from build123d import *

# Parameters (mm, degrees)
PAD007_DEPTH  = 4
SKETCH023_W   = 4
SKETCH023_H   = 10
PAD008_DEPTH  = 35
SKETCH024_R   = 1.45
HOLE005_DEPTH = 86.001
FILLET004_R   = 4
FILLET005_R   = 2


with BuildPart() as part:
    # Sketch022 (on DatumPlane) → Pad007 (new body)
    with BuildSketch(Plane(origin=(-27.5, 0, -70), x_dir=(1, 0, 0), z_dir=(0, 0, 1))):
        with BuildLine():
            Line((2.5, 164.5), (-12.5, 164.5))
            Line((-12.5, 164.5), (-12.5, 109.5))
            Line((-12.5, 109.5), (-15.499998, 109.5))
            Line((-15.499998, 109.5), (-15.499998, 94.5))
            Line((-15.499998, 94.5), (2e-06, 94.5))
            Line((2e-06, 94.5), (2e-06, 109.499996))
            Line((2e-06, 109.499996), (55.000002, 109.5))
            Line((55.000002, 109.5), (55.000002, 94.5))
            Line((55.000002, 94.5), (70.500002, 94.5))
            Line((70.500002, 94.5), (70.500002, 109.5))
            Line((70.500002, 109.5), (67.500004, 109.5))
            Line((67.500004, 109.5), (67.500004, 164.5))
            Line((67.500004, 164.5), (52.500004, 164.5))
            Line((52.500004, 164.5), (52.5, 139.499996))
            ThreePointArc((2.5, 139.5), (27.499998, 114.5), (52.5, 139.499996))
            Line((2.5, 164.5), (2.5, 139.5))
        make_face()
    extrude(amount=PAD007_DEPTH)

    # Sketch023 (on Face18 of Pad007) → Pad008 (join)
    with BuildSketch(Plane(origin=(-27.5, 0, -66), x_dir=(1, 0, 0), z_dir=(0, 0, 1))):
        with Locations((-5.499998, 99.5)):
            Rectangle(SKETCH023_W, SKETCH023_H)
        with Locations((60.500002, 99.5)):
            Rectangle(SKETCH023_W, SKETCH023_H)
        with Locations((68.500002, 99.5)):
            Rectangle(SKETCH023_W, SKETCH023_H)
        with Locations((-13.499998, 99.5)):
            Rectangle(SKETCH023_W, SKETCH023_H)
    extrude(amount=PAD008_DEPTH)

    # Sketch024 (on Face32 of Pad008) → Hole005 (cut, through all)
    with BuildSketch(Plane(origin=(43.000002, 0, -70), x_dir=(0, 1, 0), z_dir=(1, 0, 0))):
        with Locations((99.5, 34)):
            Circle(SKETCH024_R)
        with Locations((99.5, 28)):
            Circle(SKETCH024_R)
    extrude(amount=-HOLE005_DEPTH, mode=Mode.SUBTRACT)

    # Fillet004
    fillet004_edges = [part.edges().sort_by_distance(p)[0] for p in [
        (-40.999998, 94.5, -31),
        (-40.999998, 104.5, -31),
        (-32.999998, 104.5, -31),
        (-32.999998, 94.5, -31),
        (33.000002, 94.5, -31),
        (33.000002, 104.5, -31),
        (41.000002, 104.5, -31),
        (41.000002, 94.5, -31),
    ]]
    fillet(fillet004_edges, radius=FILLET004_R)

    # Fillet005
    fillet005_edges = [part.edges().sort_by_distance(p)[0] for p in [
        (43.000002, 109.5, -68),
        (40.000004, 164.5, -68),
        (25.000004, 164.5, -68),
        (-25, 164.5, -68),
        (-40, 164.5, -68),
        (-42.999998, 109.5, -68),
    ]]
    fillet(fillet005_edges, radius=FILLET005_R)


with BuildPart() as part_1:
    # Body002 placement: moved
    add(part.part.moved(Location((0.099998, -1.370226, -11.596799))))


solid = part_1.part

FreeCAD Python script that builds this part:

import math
import FreeCAD as App
import Part
import Sketcher
from FreeCAD import Vector
Q = App.Units.Quantity


def edges_at(feature, points):
    """Names of the edges that pass closest to the given points."""
    edges = feature.Shape.Edges
    near = lambda p: min(range(len(edges)), key=lambda i: edges[i].distToShape(Part.Vertex(*p))[0])
    return sorted({f"Edge{near(p) + 1}" for p in points})


def add_polygon(sketch, points):
    """Adds a closed chain of lines whose ends are joined by coincident constraints."""
    first, n = sketch.GeometryCount, len(points)
    for a, b in zip(points, points[1:] + points[:1]):
        sketch.addGeometry(Part.LineSegment(App.Vector(*a, 0), App.Vector(*b, 0)), False)
    for i in range(n):
        sketch.addConstraint(Sketcher.Constraint("Coincident", first + i, 2, first + (i + 1) % n, 1))

doc = App.newDocument("Part")
body = doc.addObject("PartDesign::Body", "Body")

sketch1 = doc.addObject("Sketcher::SketchObject", "Sketch")
body.addObject(sketch1)
sketch1.AttachmentSupport = (doc.XY_Plane, [""])
sketch1.MapMode = "FlatFace"
sketch1.AttachmentOffset = App.Placement(Vector(0, 0, -70), App.Rotation())
sketch1.addGeometry([
    Part.LineSegment(Vector(-25, 164.5, 0), Vector(-40, 164.5, 0)),
    Part.LineSegment(Vector(-40, 164.5, 0), Vector(-40, 109.5, 0)),
    Part.LineSegment(Vector(-40, 109.5, 0), Vector(-42.999998, 109.5, 0)),
    Part.LineSegment(Vector(-42.999998, 109.5, 0), Vector(-42.999998, 94.5, 0)),
    Part.LineSegment(Vector(-42.999998, 94.5, 0), Vector(-27.499998, 94.5, 0)),
    Part.LineSegment(Vector(-27.499998, 94.5, 0), Vector(-27.499998, 109.499996, 0)),
    Part.LineSegment(Vector(-27.499998, 109.499996, 0), Vector(27.500002, 109.5, 0)),
    Part.LineSegment(Vector(27.500002, 109.5, 0), Vector(27.500002, 94.5, 0)),
    Part.LineSegment(Vector(27.500002, 94.5, 0), Vector(43.000002, 94.5, 0)),
    Part.LineSegment(Vector(43.000002, 94.5, 0), Vector(43.000002, 109.5, 0)),
    Part.LineSegment(Vector(43.000002, 109.5, 0), Vector(40.000004, 109.5, 0)),
    Part.LineSegment(Vector(40.000004, 109.5, 0), Vector(40.000004, 164.5, 0)),
    Part.LineSegment(Vector(40.000004, 164.5, 0), Vector(25.000004, 164.5, 0)),
    Part.LineSegment(Vector(25.000004, 164.5, 0), Vector(25, 139.499996, 0)),
    Part.ArcOfCircle(Part.Circle(Vector(0, 139.5, 0), Vector(0, 0, 1), 25), math.radians(180), math.radians(359.999991)),
    Part.LineSegment(Vector(-25, 139.5, 0), Vector(-25, 164.5, 0)),
], False)
sketch1.addConstraint([
    Sketcher.Constraint("Coincident", 0, 2, 1, 1),
    Sketcher.Constraint("Coincident", 1, 2, 2, 1),
    Sketcher.Constraint("Coincident", 2, 2, 3, 1),
    Sketcher.Constraint("Coincident", 3, 2, 4, 1),
    Sketcher.Constraint("Coincident", 4, 2, 5, 1),
    Sketcher.Constraint("Coincident", 5, 2, 6, 1),
    Sketcher.Constraint("Coincident", 6, 2, 7, 1),
    Sketcher.Constraint("Coincident", 7, 2, 8, 1),
    Sketcher.Constraint("Coincident", 8, 2, 9, 1),
    Sketcher.Constraint("Coincident", 9, 2, 10, 1),
    Sketcher.Constraint("Coincident", 10, 2, 11, 1),
    Sketcher.Constraint("Coincident", 11, 2, 12, 1),
    Sketcher.Constraint("Coincident", 12, 2, 13, 1),
    Sketcher.Constraint("Tangent", 13, 2, 14, 2),
    Sketcher.Constraint("Tangent", 14, 1, 15, 1),
    Sketcher.Constraint("Coincident", 15, 2, 0, 1),
    Sketcher.Constraint("Horizontal", 0),
    Sketcher.Constraint("Vertical", 1),
    Sketcher.Constraint("Horizontal", 2),
    Sketcher.Constraint("Vertical", 3),
    Sketcher.Constraint("Horizontal", 4),
    Sketcher.Constraint("Vertical", 5),
    Sketcher.Constraint("Vertical", 7),
    Sketcher.Constraint("Horizontal", 8),
    Sketcher.Constraint("Vertical", 9),
    Sketcher.Constraint("Horizontal", 10),
    Sketcher.Constraint("Vertical", 11),
    Sketcher.Constraint("Horizontal", 12),
    Sketcher.Constraint("Vertical", 15),
    Sketcher.Constraint("Symmetric", 5, 2, 6, 2, -2),
    Sketcher.Constraint("Symmetric", 3, 2, 8, 2, -2),
    Sketcher.Constraint("Symmetric", 1, 2, 10, 2, -2),
    Sketcher.Constraint("Symmetric", 13, 2, 14, 1, -2),
    Sketcher.Constraint("Horizontal", 2, 2, 6, 2),
    Sketcher.Constraint("Horizontal", 0, 2, 11, 2),
    Sketcher.Constraint("Equal", 12, 3),
    Sketcher.Constraint("Radius", 14, Q("25 mm")),
    Sketcher.Constraint("DistanceX", 0, 2, 0, 1, Q("15 mm")),
    Sketcher.Constraint("DistanceX", 10, 2, 10, 1, Q("2.999998 mm")),
    Sketcher.Constraint("DistanceY", 1, 2, 1, 1, Q("55 mm")),
    Sketcher.Constraint("DistanceY", 15, 1, 15, 2, Q("25 mm")),
    Sketcher.Constraint("Distance", 6, Q("55 mm")),
    Sketcher.Constraint("DistanceY", -1, 1, 14, 3, Q("139.5 mm")),
])
pad1 = doc.addObject("PartDesign::Pad", "Pad")
body.addObject(pad1)
pad1.Profile = sketch1
pad1.Length = 4

sketch2 = doc.addObject("Sketcher::SketchObject", "Sketch001")
body.addObject(sketch2)
sketch2.AttachmentSupport = (doc.XY_Plane, [""])
sketch2.MapMode = "FlatFace"
sketch2.AttachmentOffset = App.Placement(Vector(0, 0, -66), App.Rotation())
add_polygon(sketch2, [(-34.999998, 104.5), (-34.999998, 94.5), (-30.999998, 94.5), (-30.999998, 104.5)])
add_polygon(sketch2, [(31.000002, 104.5), (31.000002, 94.5), (35.000002, 94.5), (35.000002, 104.5)])
add_polygon(sketch2, [(39.000002, 104.5), (39.000002, 94.5), (43.000002, 94.5), (43.000002, 104.5)])
add_polygon(sketch2, [(-42.999998, 104.5), (-42.999998, 94.5), (-38.999998, 94.5), (-38.999998, 104.5)])
sketch2.addConstraint([
    Sketcher.Constraint("Vertical", 0),
    Sketcher.Constraint("Horizontal", 1),
    Sketcher.Constraint("Vertical", 2),
    Sketcher.Constraint("Horizontal", 3),
    Sketcher.Constraint("Vertical", 4),
    Sketcher.Constraint("Horizontal", 5),
    Sketcher.Constraint("Vertical", 6),
    Sketcher.Constraint("Horizontal", 7),
    Sketcher.Constraint("Vertical", 8),
    Sketcher.Constraint("Horizontal", 9),
    Sketcher.Constraint("Vertical", 10),
    Sketcher.Constraint("Horizontal", 11),
    Sketcher.Constraint("Vertical", 12),
    Sketcher.Constraint("Horizontal", 13),
    Sketcher.Constraint("Vertical", 14),
    Sketcher.Constraint("Horizontal", 15),
    Sketcher.Constraint("Symmetric", 1, 2, 4, 2, -2),
    Sketcher.Constraint("Symmetric", 3, 2, 6, 2, -2),
    Sketcher.Constraint("Symmetric", 9, 2, 12, 2, -2),
    Sketcher.Constraint("Symmetric", 11, 2, 14, 2, -2),
    Sketcher.Constraint("Horizontal", 5, 2, 8, 2),
    Sketcher.Constraint("Horizontal", 7, 2, 10, 2),
    Sketcher.Constraint("Equal", 7, 9),
    Sketcher.Constraint("DistanceX", 1, 1, 1, 2, Q("4 mm")),
    Sketcher.Constraint("DistanceY", 0, 2, 0, 1, Q("10 mm")),
    Sketcher.Constraint("DistanceX", 1, 2, -1, 1, Q("30.999998 mm")),
    Sketcher.Constraint("DistanceX", 5, 2, 8, 2, Q("4 mm")),
    Sketcher.Constraint("DistanceY", -1, 1, 0, 2, Q("94.5 mm")),
])
pad2 = doc.addObject("PartDesign::Pad", "Pad001")
body.addObject(pad2)
pad2.Profile = sketch2
pad2.Length = 35

sketch3 = doc.addObject("Sketcher::SketchObject", "Sketch002")
body.addObject(sketch3)
sketch3.AttachmentSupport = (doc.YZ_Plane, [""])
sketch3.MapMode = "FlatFace"
sketch3.AttachmentOffset = App.Placement(Vector(0, 0, 43.000002), App.Rotation())
sketch3.addGeometry([
    Part.Circle(Vector(99.5, -36, 0), Vector(0, 0, 1), 1.45),
    Part.Circle(Vector(99.5, -42, 0), Vector(0, 0, 1), 1.45),
], False)
sketch3.addConstraint([
    Sketcher.Constraint("Equal", 0, 1),
    Sketcher.Constraint("Vertical", 0, 3, 1, 3),
    Sketcher.Constraint("Diameter", 0, Q("2.9 mm")),
    Sketcher.Constraint("DistanceY", 0, 3, -1, 1, Q("36 mm")),
    Sketcher.Constraint("DistanceY", 1, 3, -1, 1, Q("42 mm")),
    Sketcher.Constraint("DistanceX", -1, 1, 0, 3, Q("99.5 mm")),
])
pocket1 = doc.addObject("PartDesign::Pocket", "Pocket")
body.addObject(pocket1)
pocket1.Profile = sketch3
pocket1.Type = "ThroughAll"
doc.recompute()

fillet = doc.addObject("PartDesign::Fillet", "Fillet")
body.addObject(fillet)
fillet.Base = (pocket1, edges_at(pocket1, [
    (-41, 94.5, -31),
    (-41, 104.5, -31),
    (-33, 104.5, -31),
    (-33, 94.5, -31),
    (33, 94.5, -31),
    (33, 104.5, -31),
    (41, 104.5, -31),
    (41, 94.5, -31),
]))
fillet.Radius = 4
doc.recompute()

fillet2 = doc.addObject("PartDesign::Fillet", "Fillet001")
body.addObject(fillet2)
fillet2.Base = (fillet, edges_at(fillet, [
    (43, 109.5, -68),
    (40, 164.5, -68),
    (25, 164.5, -68),
    (-25, 164.5, -68),
    (-40, 164.5, -68),
    (-43, 109.5, -68),
]))
fillet2.Radius = 2
body2 = doc.addObject("PartDesign::Body", "Body001")
doc.recompute()

body.Placement = App.Placement(Vector(0.099998, -1.370226, -11.596799), App.Rotation(Vector(0, 0, 1), 0))
boolean = doc.addObject("PartDesign::Boolean", "Boolean")
body2.addObject(boolean)
boolean.Type = "Fuse"
boolean.addObjects([body])

doc.recompute()
